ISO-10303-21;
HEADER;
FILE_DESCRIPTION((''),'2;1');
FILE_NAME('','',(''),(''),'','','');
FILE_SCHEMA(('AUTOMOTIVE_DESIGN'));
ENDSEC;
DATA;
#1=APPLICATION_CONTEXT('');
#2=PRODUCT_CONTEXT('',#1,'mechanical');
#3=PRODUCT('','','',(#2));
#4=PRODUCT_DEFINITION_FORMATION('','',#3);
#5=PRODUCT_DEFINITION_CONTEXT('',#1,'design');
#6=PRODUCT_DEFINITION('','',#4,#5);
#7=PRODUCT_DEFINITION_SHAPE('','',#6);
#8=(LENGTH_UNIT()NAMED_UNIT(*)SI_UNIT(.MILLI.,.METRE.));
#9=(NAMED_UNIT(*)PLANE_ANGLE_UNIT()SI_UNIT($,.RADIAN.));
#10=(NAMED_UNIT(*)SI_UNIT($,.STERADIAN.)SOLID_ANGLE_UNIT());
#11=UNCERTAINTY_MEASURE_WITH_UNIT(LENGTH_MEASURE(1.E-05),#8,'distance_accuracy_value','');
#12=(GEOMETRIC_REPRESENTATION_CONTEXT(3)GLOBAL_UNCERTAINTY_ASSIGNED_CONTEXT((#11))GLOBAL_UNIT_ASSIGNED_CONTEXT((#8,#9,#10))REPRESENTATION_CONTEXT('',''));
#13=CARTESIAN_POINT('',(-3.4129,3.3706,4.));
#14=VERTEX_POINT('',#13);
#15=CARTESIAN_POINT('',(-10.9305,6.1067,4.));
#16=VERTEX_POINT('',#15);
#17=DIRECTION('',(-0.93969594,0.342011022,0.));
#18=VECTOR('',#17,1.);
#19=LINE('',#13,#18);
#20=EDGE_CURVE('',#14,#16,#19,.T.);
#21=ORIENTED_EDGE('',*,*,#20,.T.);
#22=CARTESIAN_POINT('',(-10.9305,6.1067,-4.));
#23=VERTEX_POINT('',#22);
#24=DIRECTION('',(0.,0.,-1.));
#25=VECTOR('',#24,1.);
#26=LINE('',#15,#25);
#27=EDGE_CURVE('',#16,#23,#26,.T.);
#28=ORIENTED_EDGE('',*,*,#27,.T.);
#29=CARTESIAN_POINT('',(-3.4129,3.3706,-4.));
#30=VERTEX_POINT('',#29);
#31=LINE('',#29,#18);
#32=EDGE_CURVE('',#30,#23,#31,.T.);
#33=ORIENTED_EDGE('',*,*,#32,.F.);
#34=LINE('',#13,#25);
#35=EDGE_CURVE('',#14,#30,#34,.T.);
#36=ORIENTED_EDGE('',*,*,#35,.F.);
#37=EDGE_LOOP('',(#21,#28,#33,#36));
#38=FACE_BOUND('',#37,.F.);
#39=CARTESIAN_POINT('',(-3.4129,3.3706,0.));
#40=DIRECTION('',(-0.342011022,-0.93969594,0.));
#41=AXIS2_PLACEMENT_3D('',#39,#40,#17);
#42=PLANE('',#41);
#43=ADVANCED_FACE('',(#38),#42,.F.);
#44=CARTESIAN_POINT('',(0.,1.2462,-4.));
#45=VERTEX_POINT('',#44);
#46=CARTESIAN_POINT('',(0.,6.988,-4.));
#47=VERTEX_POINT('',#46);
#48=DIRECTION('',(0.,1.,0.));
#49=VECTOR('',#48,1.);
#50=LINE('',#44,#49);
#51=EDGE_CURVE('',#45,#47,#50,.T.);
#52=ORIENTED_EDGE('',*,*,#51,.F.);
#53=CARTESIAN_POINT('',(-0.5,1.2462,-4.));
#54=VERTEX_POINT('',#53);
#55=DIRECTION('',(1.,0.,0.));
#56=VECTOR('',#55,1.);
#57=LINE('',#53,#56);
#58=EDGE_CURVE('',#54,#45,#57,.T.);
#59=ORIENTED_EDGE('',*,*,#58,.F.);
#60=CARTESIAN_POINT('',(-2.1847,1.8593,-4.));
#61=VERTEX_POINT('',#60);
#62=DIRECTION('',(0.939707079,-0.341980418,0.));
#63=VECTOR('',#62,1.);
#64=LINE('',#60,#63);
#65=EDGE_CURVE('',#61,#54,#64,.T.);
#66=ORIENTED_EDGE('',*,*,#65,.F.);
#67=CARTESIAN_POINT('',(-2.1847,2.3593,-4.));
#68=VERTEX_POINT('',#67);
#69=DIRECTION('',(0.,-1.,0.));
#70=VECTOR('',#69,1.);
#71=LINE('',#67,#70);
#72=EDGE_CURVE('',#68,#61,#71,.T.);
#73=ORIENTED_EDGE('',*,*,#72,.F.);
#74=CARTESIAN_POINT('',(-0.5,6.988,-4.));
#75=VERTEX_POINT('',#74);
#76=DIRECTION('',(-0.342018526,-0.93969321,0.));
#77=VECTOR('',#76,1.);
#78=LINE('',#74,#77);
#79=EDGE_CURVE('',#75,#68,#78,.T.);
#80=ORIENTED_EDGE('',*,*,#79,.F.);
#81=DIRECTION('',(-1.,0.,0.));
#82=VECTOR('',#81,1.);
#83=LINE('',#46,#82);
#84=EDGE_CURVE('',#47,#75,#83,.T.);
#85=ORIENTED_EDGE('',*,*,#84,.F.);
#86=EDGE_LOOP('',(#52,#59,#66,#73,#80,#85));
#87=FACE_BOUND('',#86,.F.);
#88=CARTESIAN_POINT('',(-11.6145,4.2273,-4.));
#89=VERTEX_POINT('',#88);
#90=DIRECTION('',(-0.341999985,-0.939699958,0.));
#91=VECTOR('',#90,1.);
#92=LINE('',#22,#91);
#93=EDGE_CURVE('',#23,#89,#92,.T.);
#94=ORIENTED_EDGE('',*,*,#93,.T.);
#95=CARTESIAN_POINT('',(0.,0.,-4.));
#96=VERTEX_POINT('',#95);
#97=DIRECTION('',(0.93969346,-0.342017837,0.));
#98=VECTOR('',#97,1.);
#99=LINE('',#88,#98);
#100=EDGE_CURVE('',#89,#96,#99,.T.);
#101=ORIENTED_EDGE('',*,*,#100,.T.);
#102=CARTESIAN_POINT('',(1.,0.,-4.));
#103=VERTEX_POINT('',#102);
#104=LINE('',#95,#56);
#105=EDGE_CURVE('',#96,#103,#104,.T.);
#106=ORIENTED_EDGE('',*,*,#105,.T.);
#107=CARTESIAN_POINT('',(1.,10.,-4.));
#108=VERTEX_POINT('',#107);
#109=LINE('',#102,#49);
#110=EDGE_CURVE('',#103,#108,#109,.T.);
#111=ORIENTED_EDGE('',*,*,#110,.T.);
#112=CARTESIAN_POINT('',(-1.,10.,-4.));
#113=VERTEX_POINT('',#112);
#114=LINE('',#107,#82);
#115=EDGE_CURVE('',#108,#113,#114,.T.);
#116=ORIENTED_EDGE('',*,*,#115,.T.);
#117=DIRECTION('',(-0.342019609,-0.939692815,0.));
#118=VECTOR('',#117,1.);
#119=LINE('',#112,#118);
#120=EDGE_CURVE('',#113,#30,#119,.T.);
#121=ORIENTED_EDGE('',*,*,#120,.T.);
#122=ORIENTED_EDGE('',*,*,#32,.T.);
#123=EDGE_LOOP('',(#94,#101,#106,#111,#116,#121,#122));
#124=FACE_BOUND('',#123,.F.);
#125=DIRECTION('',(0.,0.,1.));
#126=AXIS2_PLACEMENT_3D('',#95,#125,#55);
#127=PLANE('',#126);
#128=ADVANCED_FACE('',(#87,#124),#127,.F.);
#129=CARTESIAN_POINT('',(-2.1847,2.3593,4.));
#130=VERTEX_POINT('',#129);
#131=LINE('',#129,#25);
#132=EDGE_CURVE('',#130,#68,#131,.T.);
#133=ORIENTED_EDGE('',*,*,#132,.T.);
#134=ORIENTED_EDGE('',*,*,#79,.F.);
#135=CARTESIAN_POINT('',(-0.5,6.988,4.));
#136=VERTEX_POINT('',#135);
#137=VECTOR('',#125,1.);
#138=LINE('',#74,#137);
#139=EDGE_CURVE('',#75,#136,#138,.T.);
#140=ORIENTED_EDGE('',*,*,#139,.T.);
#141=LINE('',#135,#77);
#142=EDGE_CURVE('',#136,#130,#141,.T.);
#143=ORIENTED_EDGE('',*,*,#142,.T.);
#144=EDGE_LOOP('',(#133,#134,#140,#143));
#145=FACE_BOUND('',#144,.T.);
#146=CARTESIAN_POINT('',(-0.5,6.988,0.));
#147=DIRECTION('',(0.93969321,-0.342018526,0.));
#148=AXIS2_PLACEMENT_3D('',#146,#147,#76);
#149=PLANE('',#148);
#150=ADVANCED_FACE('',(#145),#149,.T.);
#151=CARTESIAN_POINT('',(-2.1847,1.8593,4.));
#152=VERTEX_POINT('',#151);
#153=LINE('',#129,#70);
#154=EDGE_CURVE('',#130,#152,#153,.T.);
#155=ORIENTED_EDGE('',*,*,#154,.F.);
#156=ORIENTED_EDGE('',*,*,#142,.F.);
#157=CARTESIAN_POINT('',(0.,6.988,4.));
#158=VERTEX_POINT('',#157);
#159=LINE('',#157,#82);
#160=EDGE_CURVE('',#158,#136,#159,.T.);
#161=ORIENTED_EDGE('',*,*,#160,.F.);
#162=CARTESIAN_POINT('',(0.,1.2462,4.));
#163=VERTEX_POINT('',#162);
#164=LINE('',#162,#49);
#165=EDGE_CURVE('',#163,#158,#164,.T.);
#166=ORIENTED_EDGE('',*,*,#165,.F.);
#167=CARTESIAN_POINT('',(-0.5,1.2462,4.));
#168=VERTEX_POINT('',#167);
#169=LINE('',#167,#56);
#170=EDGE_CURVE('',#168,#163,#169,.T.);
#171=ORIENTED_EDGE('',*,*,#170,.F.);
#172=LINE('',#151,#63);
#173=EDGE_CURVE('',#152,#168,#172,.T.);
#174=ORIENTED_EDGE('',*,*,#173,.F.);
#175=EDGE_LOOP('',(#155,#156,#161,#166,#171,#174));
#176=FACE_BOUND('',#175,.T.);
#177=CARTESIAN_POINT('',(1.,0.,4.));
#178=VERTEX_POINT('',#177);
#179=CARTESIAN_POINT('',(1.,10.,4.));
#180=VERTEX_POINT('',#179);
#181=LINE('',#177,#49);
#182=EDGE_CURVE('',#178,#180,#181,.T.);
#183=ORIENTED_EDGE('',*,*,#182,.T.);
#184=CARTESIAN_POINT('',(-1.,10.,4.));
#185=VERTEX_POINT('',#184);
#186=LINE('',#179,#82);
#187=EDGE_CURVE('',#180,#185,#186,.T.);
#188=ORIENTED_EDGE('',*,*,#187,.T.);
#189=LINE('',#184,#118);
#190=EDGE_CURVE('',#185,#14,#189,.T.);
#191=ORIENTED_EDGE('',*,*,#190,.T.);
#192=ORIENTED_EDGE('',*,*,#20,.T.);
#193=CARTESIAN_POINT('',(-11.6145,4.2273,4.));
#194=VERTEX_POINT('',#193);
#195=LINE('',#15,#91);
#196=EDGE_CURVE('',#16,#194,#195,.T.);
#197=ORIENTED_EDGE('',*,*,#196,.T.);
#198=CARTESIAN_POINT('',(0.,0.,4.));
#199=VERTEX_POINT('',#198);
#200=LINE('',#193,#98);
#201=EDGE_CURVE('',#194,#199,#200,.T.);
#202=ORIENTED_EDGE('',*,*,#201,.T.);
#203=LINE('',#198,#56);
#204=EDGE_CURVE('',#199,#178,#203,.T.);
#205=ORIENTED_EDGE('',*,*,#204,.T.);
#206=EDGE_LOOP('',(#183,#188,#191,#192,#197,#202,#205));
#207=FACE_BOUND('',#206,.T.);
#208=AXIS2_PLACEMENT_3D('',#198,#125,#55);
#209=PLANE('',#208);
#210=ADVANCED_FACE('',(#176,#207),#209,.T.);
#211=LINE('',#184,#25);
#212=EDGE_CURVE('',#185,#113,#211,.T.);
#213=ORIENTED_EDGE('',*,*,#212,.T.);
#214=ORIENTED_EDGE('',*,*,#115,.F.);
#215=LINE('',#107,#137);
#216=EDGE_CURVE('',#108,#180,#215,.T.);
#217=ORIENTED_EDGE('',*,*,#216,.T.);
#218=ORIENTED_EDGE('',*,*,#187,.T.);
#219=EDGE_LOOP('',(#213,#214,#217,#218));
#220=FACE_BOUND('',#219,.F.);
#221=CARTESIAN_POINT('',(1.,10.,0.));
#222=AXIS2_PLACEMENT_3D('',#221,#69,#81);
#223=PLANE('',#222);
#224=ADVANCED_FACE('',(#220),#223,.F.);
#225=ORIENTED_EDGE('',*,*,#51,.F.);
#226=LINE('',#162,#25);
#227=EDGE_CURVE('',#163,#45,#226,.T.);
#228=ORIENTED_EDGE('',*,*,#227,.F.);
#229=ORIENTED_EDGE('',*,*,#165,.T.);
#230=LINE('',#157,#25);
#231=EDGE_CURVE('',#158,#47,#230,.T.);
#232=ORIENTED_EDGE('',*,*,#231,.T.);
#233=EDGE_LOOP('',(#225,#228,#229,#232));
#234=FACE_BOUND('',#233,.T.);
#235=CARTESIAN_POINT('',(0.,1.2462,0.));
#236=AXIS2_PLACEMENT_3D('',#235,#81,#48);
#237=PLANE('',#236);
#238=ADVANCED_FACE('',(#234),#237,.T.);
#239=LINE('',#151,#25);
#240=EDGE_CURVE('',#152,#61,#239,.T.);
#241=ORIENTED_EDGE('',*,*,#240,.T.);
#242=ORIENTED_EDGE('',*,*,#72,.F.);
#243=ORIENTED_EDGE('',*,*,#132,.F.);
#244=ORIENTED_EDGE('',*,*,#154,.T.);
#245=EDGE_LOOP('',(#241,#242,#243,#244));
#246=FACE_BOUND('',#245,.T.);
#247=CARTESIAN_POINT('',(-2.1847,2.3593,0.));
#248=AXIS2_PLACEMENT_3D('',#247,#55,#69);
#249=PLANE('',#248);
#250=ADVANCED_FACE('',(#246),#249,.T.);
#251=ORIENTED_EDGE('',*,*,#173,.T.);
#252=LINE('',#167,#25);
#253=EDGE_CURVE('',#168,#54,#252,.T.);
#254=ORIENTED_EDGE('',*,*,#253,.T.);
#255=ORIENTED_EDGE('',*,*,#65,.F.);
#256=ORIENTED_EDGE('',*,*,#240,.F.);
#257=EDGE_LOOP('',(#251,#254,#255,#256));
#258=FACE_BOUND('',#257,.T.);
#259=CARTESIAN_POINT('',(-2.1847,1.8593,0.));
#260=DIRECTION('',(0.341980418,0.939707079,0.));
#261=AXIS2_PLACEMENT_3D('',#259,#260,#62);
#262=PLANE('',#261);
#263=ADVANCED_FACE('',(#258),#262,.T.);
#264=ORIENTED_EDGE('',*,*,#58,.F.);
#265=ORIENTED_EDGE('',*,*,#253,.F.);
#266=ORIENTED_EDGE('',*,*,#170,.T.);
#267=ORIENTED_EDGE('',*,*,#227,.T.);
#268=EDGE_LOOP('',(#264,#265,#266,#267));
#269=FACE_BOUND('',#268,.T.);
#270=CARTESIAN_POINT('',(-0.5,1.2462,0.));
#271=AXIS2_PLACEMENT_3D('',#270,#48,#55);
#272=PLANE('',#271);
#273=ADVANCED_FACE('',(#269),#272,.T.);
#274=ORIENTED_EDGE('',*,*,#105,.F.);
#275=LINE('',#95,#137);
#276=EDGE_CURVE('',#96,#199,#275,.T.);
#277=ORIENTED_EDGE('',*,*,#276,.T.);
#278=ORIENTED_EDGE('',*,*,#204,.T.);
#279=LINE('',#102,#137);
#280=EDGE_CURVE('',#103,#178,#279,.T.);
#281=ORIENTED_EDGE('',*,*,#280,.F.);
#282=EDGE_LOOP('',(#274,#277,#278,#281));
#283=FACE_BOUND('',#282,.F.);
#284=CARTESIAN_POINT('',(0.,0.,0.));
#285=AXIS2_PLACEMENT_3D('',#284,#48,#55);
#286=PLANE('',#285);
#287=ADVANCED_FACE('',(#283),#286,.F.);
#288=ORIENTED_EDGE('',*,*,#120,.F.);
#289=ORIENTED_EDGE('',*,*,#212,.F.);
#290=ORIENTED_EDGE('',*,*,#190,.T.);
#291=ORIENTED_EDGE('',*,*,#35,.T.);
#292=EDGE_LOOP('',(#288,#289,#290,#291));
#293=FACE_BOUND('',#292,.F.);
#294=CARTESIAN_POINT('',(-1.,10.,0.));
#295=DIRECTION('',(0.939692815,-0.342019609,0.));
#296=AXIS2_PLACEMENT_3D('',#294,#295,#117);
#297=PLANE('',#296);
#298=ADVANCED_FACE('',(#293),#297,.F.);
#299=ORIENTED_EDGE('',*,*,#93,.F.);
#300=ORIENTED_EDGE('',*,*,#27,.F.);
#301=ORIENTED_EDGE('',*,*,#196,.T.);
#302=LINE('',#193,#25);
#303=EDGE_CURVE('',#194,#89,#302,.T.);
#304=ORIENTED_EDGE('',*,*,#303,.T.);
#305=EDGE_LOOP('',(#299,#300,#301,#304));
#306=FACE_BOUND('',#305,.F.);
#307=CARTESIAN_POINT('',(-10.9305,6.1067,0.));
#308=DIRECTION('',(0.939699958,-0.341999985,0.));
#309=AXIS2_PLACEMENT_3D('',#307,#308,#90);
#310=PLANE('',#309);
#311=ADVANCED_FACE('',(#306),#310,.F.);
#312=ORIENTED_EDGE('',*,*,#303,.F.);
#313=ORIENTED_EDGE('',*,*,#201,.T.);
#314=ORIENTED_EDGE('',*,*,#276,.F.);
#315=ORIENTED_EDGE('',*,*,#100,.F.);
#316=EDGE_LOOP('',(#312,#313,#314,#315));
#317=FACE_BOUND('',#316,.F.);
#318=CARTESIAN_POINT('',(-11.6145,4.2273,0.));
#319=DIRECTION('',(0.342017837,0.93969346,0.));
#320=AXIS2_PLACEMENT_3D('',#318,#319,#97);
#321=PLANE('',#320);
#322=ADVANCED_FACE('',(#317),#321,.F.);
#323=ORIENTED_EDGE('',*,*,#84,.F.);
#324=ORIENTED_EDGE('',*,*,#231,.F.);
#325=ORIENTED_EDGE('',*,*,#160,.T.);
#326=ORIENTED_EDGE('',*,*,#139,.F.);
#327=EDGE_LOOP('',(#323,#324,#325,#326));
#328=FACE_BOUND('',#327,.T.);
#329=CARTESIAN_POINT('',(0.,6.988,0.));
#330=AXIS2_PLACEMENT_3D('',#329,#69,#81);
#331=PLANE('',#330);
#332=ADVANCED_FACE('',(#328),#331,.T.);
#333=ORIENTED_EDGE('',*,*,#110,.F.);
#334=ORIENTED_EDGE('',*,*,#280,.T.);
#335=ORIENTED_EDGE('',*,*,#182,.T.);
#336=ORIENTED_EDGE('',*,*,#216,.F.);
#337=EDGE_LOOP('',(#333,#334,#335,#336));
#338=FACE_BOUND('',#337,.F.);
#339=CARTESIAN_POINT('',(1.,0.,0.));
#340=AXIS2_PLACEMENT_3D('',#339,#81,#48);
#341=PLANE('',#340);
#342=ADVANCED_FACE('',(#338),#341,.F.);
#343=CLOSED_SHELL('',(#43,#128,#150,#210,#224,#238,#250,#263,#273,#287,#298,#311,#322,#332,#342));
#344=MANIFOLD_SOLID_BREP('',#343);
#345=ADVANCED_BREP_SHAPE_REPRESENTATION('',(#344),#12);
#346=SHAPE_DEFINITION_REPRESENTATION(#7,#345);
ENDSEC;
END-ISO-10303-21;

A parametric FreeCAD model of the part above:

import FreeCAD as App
import Part
import Sketcher
from FreeCAD import Vector
Q = App.Units.Quantity


def add_polygon(sketch, points):
    """Adds a closed chain of lines whose ends are joined by coincident constraints."""
    first, n = sketch.GeometryCount, len(points)
    for a, b in zip(points, points[1:] + points[:1]):
        sketch.addGeometry(Part.LineSegment(App.Vector(*a, 0), App.Vector(*b, 0)), False)
    for i in range(n):
        sketch.addConstraint(Sketcher.Constraint("Coincident", first + i, 2, first + (i + 1) % n, 1))

doc = App.newDocument("Part")
params = doc.addObject("Spreadsheet::Sheet", "Params")
for row, (alias, value) in enumerate([
    ("sketch1_width", "1 mm"),
    ("sketch1_width2", "2 mm"),
    ("sketch1_height", "10 mm"),
    ("sketch1_length", "8 mm"),
    ("sketch1_length2", "2 mm"),
    ("pad1_length", "8 mm"),
], start=1):
    params.set(f"A{row}", alias)
    params.set(f"B{row}", "=" + value)
    params.setAlias(f"B{row}", alias)

body = doc.addObject("PartDesign::Body", "Body")

sketch1 = body.newObject("Sketcher::SketchObject", "Sketch")
sketch1.AttachmentSupport = (doc.getObject("XY_Plane"), [""])
sketch1.MapMode = "FlatFace"
add_polygon(sketch1, [(-11.6, 4.2), (0, 0), (1, 0), (1, 10), (-1, 10), (-3.4, 3.4), (-10.9, 6.1)])
add_polygon(sketch1, [(-2.2, 2.4), (-0.5, 7), (0, 7), (0, 1.2), (-0.5, 1.2), (-2.2, 1.9)])
sketch1.addConstraint([
    Sketcher.Constraint("Horizontal", 1),
    Sketcher.Constraint("Vertical", 2),
    Sketcher.Constraint("Horizontal", 3),
    Sketcher.Constraint("Horizontal", 8),
    Sketcher.Constraint("Vertical", 9),
    Sketcher.Constraint("Horizontal", 10),
    Sketcher.Constraint("Vertical", 12),
    Sketcher.Constraint("Coincident", 0, 2, -1, 1),
    Sketcher.Constraint("PointOnObject", 8, 2, -2),
    Sketcher.Constraint("Perpendicular", 0, 4),
    Sketcher.Constraint("Perpendicular", 4, 5),
    Sketcher.Constraint("Perpendicular", 5, 6),
    Sketcher.Constraint("Parallel", 6, 7),
    Sketcher.Constraint("Perpendicular", 7, 11),
    Sketcher.Constraint("Vertical", 7, 2, 10, 2),
    Sketcher.Constraint("Equal", 10, 12),
    Sketcher.Constraint("DistanceX", 1, 1, 1, 2, Q("1 mm")),
    Sketcher.Constraint("DistanceX", 3, 2, 3, 1, Q("2 mm")),
    Sketcher.Constraint("DistanceY", 2, 1, 2, 2, Q("10 mm")),
    Sketcher.Constraint("Angle", 7, Q("70 deg")),
    Sketcher.Constraint("Distance", 5, Q("8 mm")),
    Sketcher.Constraint("Distance", 6, Q("2 mm")),
    Sketcher.Constraint("DistanceX", 8, 1, 8, 2, Q("0.5 mm")),
    Sketcher.Constraint("DistanceY", 9, 2, 9, 1, Q("5.7418 mm")),
    Sketcher.Constraint("DistanceY", -1, 1, 7, 2, Q("6.988 mm")),
])
sketch1.setExpression("Constraints[29]", "Params.sketch1_width")
sketch1.setExpression("Constraints[30]", "Params.sketch1_width2")
sketch1.setExpression("Constraints[31]", "Params.sketch1_height")
sketch1.setExpression("Constraints[33]", "Params.sketch1_length")
sketch1.setExpression("Constraints[34]", "Params.sketch1_length2")
pad1 = body.newObject("PartDesign::Pad", "Pad")
pad1.Profile = sketch1
pad1.setExpression("Length", "Params.pad1_length")
pad1.Midplane = True

doc.recompute()
